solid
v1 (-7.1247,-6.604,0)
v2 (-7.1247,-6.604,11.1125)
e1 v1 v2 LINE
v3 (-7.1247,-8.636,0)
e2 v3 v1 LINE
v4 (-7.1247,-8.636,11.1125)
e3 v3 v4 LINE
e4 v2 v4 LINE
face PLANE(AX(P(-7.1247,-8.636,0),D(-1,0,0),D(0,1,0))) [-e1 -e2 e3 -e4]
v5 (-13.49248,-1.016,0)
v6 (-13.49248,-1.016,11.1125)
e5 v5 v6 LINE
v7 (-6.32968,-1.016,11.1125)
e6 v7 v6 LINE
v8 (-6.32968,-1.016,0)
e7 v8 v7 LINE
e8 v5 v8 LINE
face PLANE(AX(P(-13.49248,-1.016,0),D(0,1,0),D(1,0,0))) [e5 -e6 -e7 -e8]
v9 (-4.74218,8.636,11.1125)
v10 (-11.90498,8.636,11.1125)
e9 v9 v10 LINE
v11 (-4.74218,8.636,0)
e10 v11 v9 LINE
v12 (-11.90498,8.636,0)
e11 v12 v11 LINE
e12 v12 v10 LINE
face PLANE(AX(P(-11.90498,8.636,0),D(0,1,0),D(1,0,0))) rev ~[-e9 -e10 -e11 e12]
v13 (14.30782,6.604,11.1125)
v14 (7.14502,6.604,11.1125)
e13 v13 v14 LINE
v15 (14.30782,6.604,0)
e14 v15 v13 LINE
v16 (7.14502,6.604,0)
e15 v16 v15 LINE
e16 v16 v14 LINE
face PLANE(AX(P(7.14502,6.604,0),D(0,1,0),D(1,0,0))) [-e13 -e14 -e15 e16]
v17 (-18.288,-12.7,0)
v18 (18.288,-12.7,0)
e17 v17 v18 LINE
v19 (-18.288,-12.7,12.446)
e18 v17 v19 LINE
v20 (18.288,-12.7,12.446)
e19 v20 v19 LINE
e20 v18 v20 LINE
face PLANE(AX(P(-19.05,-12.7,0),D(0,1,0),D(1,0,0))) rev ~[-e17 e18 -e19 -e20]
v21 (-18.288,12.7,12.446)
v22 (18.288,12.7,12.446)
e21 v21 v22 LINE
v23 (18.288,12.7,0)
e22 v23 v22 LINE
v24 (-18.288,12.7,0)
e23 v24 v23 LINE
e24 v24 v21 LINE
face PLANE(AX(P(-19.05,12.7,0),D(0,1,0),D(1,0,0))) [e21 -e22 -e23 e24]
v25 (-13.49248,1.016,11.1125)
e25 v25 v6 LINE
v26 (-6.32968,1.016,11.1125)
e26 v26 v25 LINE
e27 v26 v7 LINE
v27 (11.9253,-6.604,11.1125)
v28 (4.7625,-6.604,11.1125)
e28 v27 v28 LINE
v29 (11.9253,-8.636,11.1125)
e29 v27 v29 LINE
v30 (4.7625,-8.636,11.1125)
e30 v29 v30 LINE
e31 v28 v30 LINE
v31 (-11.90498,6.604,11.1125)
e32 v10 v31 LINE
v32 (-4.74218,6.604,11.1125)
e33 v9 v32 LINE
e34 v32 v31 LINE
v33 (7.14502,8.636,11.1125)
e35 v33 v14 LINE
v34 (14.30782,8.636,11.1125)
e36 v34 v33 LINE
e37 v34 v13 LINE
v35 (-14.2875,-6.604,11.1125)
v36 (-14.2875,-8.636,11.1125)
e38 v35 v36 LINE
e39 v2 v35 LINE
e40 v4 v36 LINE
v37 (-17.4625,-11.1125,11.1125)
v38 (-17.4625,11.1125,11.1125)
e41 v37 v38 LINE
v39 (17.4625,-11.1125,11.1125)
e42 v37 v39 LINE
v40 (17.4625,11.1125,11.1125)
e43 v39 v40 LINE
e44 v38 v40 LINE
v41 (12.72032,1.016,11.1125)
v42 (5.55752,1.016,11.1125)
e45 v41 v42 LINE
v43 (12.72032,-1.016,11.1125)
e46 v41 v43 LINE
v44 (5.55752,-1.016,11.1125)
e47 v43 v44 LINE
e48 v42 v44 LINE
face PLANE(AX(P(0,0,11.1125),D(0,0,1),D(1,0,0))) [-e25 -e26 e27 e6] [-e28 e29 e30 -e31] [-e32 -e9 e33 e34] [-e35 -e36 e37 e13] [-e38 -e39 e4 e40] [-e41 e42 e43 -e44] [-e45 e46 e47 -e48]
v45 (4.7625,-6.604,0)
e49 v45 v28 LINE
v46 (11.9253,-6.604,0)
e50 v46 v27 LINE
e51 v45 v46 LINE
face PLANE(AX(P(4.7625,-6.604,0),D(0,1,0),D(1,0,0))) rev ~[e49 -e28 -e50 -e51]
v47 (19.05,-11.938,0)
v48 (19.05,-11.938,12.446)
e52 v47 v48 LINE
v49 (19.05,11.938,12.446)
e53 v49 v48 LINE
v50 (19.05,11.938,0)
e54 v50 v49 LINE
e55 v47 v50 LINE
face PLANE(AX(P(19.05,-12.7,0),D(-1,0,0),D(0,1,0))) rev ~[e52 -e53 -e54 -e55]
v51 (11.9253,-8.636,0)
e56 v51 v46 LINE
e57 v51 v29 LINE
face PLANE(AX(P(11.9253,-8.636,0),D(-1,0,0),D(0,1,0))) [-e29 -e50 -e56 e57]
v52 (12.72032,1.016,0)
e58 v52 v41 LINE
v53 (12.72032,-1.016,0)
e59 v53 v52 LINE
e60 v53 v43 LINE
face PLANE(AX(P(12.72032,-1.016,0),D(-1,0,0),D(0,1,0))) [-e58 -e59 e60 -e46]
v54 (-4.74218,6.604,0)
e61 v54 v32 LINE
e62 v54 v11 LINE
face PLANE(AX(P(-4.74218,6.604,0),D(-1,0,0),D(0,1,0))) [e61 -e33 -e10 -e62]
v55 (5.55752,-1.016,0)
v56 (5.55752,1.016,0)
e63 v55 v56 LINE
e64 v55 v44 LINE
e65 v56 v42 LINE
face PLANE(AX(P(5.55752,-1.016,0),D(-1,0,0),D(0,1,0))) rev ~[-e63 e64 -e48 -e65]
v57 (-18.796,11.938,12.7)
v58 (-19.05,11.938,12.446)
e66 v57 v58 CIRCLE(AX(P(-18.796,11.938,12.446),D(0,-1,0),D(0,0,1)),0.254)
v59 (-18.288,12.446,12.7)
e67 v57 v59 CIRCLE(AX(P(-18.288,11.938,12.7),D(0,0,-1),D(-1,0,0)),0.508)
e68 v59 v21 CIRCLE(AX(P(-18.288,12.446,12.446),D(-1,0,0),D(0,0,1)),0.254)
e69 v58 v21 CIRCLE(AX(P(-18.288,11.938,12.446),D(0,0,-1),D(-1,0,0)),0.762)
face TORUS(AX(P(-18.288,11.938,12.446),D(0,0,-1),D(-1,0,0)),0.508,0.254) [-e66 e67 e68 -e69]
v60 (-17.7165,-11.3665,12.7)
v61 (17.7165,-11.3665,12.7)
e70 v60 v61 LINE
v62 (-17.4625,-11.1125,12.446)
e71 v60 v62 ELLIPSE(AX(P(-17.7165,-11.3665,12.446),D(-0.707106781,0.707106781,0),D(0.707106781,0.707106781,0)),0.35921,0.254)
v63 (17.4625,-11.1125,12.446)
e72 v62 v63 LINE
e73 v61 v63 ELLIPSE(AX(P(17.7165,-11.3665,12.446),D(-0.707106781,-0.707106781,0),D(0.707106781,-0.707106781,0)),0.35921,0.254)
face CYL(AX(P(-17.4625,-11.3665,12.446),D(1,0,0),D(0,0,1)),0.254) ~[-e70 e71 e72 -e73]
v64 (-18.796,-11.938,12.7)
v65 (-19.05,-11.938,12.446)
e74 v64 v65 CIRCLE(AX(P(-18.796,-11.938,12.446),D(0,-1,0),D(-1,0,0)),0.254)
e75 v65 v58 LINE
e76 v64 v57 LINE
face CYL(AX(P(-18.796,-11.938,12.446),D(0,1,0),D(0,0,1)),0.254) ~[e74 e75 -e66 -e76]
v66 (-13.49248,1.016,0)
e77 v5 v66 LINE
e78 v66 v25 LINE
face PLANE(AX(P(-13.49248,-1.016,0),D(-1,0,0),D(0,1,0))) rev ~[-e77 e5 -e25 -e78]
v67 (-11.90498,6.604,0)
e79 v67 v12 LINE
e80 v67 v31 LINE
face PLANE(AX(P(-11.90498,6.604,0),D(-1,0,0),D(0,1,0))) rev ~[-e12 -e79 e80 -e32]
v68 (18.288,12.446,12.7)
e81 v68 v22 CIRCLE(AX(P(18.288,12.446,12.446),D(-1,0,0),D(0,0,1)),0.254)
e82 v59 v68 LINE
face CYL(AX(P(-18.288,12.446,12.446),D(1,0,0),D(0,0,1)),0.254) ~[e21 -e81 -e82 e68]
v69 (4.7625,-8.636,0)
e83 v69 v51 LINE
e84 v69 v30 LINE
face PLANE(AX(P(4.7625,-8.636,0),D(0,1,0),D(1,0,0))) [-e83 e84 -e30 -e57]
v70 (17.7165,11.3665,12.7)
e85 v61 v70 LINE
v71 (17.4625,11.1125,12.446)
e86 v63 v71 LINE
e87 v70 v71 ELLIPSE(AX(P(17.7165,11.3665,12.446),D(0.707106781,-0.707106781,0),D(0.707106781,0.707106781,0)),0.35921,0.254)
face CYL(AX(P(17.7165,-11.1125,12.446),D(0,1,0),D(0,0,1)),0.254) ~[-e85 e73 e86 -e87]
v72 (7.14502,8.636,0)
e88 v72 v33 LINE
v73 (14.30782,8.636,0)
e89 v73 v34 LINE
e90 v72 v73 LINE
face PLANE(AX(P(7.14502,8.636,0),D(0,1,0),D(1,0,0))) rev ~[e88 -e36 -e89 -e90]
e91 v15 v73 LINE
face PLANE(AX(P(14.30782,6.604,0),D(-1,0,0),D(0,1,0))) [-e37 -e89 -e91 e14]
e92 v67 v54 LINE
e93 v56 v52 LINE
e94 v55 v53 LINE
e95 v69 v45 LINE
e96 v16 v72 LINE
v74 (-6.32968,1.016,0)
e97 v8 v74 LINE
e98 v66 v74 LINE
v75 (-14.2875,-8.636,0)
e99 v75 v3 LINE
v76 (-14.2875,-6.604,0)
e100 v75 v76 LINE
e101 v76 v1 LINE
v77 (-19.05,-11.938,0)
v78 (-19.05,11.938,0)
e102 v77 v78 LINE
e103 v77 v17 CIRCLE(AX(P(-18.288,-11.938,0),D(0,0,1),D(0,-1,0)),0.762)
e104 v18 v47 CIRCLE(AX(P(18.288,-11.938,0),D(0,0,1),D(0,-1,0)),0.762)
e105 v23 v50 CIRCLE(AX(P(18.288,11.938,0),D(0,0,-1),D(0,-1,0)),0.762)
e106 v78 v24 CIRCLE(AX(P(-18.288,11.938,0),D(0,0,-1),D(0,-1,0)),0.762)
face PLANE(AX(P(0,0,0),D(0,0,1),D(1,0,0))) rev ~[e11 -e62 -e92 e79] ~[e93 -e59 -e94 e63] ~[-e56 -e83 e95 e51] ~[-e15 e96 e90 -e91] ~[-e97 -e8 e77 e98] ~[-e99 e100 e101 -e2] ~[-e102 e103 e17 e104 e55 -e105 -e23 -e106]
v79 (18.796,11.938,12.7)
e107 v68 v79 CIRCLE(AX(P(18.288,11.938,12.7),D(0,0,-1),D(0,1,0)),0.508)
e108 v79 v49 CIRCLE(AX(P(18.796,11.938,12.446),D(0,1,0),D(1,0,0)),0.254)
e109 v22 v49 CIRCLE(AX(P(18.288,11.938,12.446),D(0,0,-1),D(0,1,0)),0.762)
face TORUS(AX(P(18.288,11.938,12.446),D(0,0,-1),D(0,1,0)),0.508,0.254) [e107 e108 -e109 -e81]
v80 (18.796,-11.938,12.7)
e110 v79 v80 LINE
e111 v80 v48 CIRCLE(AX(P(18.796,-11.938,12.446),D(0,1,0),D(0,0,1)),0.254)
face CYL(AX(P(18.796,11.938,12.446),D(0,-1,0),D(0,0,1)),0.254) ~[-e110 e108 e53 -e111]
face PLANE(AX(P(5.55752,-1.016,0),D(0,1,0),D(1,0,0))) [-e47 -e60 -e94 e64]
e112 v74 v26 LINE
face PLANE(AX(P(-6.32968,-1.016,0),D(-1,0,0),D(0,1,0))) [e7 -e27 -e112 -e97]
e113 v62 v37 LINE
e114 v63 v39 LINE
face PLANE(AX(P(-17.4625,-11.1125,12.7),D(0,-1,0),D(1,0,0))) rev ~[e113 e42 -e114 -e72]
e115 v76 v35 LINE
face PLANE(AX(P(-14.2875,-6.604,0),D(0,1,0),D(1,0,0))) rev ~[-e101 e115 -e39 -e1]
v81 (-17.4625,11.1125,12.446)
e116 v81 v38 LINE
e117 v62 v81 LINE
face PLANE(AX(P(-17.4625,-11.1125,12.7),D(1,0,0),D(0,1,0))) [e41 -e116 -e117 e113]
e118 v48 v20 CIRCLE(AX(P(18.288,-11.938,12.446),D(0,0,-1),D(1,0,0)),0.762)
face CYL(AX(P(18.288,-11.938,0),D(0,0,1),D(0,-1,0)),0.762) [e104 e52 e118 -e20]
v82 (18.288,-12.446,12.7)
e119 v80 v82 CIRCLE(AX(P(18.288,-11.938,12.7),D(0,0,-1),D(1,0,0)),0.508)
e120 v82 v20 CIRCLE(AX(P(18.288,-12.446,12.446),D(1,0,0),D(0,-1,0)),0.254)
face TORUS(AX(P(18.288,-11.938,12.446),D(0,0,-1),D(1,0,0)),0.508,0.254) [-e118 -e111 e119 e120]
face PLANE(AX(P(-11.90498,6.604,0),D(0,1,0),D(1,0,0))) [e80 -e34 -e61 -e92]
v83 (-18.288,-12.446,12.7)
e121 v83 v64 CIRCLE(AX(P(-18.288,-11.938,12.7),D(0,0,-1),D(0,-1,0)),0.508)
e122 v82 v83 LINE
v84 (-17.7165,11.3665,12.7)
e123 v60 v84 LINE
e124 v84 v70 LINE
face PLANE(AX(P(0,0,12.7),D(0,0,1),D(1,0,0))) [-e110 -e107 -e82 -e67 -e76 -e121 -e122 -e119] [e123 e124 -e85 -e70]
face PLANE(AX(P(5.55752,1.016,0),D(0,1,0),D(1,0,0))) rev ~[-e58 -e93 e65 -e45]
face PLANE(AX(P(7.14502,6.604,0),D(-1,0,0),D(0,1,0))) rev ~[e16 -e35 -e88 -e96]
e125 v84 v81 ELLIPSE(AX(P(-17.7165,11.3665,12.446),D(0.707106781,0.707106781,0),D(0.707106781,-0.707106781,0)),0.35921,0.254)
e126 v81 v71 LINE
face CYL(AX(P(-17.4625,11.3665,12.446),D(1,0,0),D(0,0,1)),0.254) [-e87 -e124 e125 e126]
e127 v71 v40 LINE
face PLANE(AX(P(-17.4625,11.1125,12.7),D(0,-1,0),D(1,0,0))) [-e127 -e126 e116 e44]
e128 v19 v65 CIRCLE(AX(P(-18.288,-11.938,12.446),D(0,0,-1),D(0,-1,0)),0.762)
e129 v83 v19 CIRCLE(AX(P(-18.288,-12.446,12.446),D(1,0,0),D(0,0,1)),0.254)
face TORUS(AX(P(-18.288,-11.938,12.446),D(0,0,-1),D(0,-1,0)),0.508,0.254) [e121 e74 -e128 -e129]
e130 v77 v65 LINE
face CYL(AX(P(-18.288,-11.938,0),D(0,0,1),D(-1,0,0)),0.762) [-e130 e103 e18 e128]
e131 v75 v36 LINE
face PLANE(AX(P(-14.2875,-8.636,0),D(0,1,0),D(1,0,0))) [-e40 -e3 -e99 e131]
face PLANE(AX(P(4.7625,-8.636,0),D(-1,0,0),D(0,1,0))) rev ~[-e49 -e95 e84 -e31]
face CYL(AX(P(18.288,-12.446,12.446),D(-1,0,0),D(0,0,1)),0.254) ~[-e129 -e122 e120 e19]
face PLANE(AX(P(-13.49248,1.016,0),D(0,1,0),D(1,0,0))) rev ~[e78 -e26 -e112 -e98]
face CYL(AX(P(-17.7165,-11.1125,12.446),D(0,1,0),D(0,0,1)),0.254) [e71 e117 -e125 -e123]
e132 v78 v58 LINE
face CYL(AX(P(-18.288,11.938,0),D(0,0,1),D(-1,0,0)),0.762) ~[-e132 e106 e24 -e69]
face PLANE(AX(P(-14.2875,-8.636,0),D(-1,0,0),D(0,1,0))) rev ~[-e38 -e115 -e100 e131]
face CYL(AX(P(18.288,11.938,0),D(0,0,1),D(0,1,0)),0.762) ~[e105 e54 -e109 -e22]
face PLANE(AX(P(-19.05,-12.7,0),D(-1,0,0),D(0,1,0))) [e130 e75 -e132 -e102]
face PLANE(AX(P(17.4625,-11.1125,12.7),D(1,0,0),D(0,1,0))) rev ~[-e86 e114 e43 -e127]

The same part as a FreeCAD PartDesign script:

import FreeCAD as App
import Part
import Sketcher
Q = App.Units.Quantity


def edges_at(feature, points):
    """Names of the edges that pass closest to the given points."""
    edges = feature.Shape.Edges
    near = lambda p: min(range(len(edges)), key=lambda i: edges[i].distToShape(Part.Vertex(*p))[0])
    return sorted({f"Edge{near(p) + 1}" for p in points})

doc = App.newDocument("Part")
body = doc.addObject("PartDesign::Body", "Body")

# Sketch on XY plane
sketch1 = body.newObject("Sketcher::SketchObject", "Sketch")
sketch1.AttachmentSupport = (doc.getObject("XY_Plane"), [""])
sketch1.MapMode = "FlatFace"
sketch1.addGeometry([
    Part.LineSegment(App.Vector(-19.05, 12.7, 0), App.Vector(-19.05, -12.7, 0)),
    Part.LineSegment(App.Vector(-19.05, -12.7, 0), App.Vector(19.05, -12.7, 0)),
    Part.LineSegment(App.Vector(19.05, -12.7, 0), App.Vector(19.05, 12.7, 0)),
    Part.LineSegment(App.Vector(19.05, 12.7, 0), App.Vector(-19.05, 12.7, 0)),
], False)
sketch1.addConstraint([
    Sketcher.Constraint("Coincident", 0, 2, 1, 1),
    Sketcher.Constraint("Coincident", 1, 2, 2, 1),
    Sketcher.Constraint("Coincident", 2, 2, 3, 1),
    Sketcher.Constraint("Coincident", 3, 2, 0, 1),
    Sketcher.Constraint("Vertical", 0),
    Sketcher.Constraint("Horizontal", 1),
    Sketcher.Constraint("Vertical", 2),
    Sketcher.Constraint("Horizontal", 3),
    Sketcher.Constraint("Symmetric", 0, 2, 2, 2, -1, 1),
    Sketcher.Constraint("DistanceY", 0, 2, 0, 1, Q("1 in")),
    Sketcher.Constraint("DistanceX", 1, 1, 1, 2, Q("1.5 in")),
])
pad1 = body.newObject("PartDesign::Pad", "Pad")
pad1.Profile = sketch1
pad1.Length = Q("0.5 in")

# Sketch on XY plane
sketch2 = body.newObject("Sketcher::SketchObject", "Sketch001")
sketch2.AttachmentSupport = (doc.getObject("XY_Plane"), [""])
sketch2.MapMode = "FlatFace"
sketch2.AttachmentOffset = App.Placement(App.Vector(0, 0, 0.5 * 25.4), App.Rotation())
sketch2.addGeometry([
    Part.LineSegment(App.Vector(-17.4625, 11.1125, 0), App.Vector(-17.4625, -11.1125, 0)),
    Part.LineSegment(App.Vector(-17.4625, -11.1125, 0), App.Vector(17.4625, -11.1125, 0)),
    Part.LineSegment(App.Vector(17.4625, -11.1125, 0), App.Vector(17.4625, 11.1125, 0)),
    Part.LineSegment(App.Vector(17.4625, 11.1125, 0), App.Vector(-17.4625, 11.1125, 0)),
], False)
sketch2.addConstraint([
    Sketcher.Constraint("Coincident", 0, 2, 1, 1),
    Sketcher.Constraint("Coincident", 1, 2, 2, 1),
    Sketcher.Constraint("Coincident", 2, 2, 3, 1),
    Sketcher.Constraint("Coincident", 3, 2, 0, 1),
    Sketcher.Constraint("Vertical", 0),
    Sketcher.Constraint("Horizontal", 1),
    Sketcher.Constraint("Vertical", 2),
    Sketcher.Constraint("Horizontal", 3),
    Sketcher.Constraint("Symmetric", 0, 2, 2, 2, -1, 1),
    Sketcher.Constraint("DistanceX", 1, 1, 1, 2, Q("1.375 in")),
    Sketcher.Constraint("DistanceY", 0, 2, 0, 1, Q("0.875 in")),
])
pocket1 = body.newObject("PartDesign::Pocket", "Pocket")
pocket1.Profile = sketch2
pocket1.Length = Q("0.0625 in")
doc.recompute()

fillet = body.newObject("PartDesign::Fillet", "Fillet")
fillet.Base = (pocket1, edges_at(pocket1, [
    (-19.05, -12.7, 6.35),
    (-19.05, 12.7, 6.35),
    (19.05, 12.7, 6.35),
    (19.05, -12.7, 6.35),
]))
fillet.Radius = Q("0.03 in")
doc.recompute()

fillet2 = body.newObject("PartDesign::Fillet", "Fillet001")
fillet2.Base = (fillet, edges_at(fillet, [
    (0, 12.7, 12.7),
    (18.827, 12.477, 12.7),
    (-18.827, 12.477, 12.7),
    (19.05, 0, 12.7),
    (-19.05, 0, 12.7),
    (18.827, -12.477, 12.7),
    (-18.827, -12.477, 12.7),
    (0, -12.7, 12.7),
    (0, 11.113, 12.7),
    (-17.462, 0, 12.7),
    (0, -11.113, 12.7),
    (17.462, 0, 12.7),
]))
fillet2.Radius = Q("0.01 in")

# Sketch on XY plane
sketch3 = body.newObject("Sketcher::SketchObject", "Sketch002")
sketch3.AttachmentSupport = (doc.getObject("XY_Plane"), [""])
sketch3.MapMode = "FlatFace"
sketch3.addGeometry([
    Part.LineSegment(App.Vector(-14.2875, -6.604, 0), App.Vector(-14.2875, -8.636, 0)),  # 0
    Part.LineSegment(App.Vector(-14.2875, -8.636, 0), App.Vector(-7.1247, -8.636, 0)),  # 1
    Part.LineSegment(App.Vector(-7.1247, -8.636, 0), App.Vector(-7.1247, -6.604, 0)),  # 2
    Part.LineSegment(App.Vector(-7.1247, -6.604, 0), App.Vector(-14.2875, -6.604, 0)),  # 3
    Part.LineSegment(App.Vector(-13.49248, 1.016, 0), App.Vector(-13.49248, -1.016, 0)),  # 4
    Part.LineSegment(App.Vector(-13.49248, -1.016, 0), App.Vector(-6.32968, -1.016, 0)),  # 5
    Part.LineSegment(App.Vector(-6.32968, -1.016, 0), App.Vector(-6.32968, 1.016, 0)),  # 6
    Part.LineSegment(App.Vector(-6.32968, 1.016, 0), App.Vector(-13.49248, 1.016, 0)),  # 7
    Part.LineSegment(App.Vector(-11.90498, 8.636, 0), App.Vector(-11.90498, 6.604, 0)),  # 8
    Part.LineSegment(App.Vector(-11.90498, 6.604, 0), App.Vector(-4.74218, 6.604, 0)),  # 9
    Part.LineSegment(App.Vector(-4.74218, 6.604, 0), App.Vector(-4.74218, 8.636, 0)),  # 10
    Part.LineSegment(App.Vector(-4.74218, 8.636, 0), App.Vector(-11.90498, 8.636, 0)),  # 11
    Part.LineSegment(App.Vector(5.55752, 1.016, 0), App.Vector(5.55752, -1.016, 0)),  # 12
    Part.LineSegment(App.Vector(5.55752, -1.016, 0), App.Vector(12.72032, -1.016, 0)),  # 13
    Part.LineSegment(App.Vector(12.72032, -1.016, 0), App.Vector(12.72032, 1.016, 0)),  # 14
    Part.LineSegment(App.Vector(12.72032, 1.016, 0), App.Vector(5.55752, 1.016, 0)),  # 15
    Part.LineSegment(App.Vector(4.7625, -6.604, 0), App.Vector(4.7625, -8.636, 0)),  # 16
    Part.LineSegment(App.Vector(4.7625, -8.636, 0), App.Vector(11.9253, -8.636, 0)),  # 17
    Part.LineSegment(App.Vector(11.9253, -8.636, 0), App.Vector(11.9253, -6.604, 0)),  # 18
    Part.LineSegment(App.Vector(11.9253, -6.604, 0), App.Vector(4.7625, -6.604, 0)),  # 19
    Part.LineSegment(App.Vector(7.14502, 8.636, 0), App.Vector(7.14502, 6.604, 0)),  # 20
    Part.LineSegment(App.Vector(7.14502, 6.604, 0), App.Vector(14.30782, 6.604, 0)),  # 21
    Part.LineSegment(App.Vector(14.30782, 6.604, 0), App.Vector(14.30782, 8.636, 0)),  # 22
    Part.LineSegment(App.Vector(14.30782, 8.636, 0), App.Vector(7.14502, 8.636, 0)),  # 23
], False)
sketch3.addConstraint([
    Sketcher.Constraint("Coincident", 0, 2, 1, 1),
    Sketcher.Constraint("Coincident", 1, 2, 2, 1),
    Sketcher.Constraint("Coincident", 2, 2, 3, 1),
    Sketcher.Constraint("Coincident", 3, 2, 0, 1),
    Sketcher.Constraint("Coincident", 4, 2, 5, 1),
    Sketcher.Constraint("Coincident", 5, 2, 6, 1),
    Sketcher.Constraint("Coincident", 6, 2, 7, 1),
    Sketcher.Constraint("Coincident", 7, 2, 4, 1),
    Sketcher.Constraint("Coincident", 8, 2, 9, 1),
    Sketcher.Constraint("Coincident", 9, 2, 10, 1),
    Sketcher.Constraint("Coincident", 10, 2, 11, 1),
    Sketcher.Constraint("Coincident", 11, 2, 8, 1),
    Sketcher.Constraint("Coincident", 12, 2, 13, 1),
    Sketcher.Constraint("Coincident", 13, 2, 14, 1),
    Sketcher.Constraint("Coincident", 14, 2, 15, 1),
    Sketcher.Constraint("Coincident", 15, 2, 12, 1),
    Sketcher.Constraint("Coincident", 16, 2, 17, 1),
    Sketcher.Constraint("Coincident", 17, 2, 18, 1),
    Sketcher.Constraint("Coincident", 18, 2, 19, 1),
    Sketcher.Constraint("Coincident", 19, 2, 16, 1),
    Sketcher.Constraint("Coincident", 20, 2, 21, 1),
    Sketcher.Constraint("Coincident", 21, 2, 22, 1),
    Sketcher.Constraint("Coincident", 22, 2, 23, 1),
    Sketcher.Constraint("Coincident", 23, 2, 20, 1),
    Sketcher.Constraint("Vertical", 0),
    Sketcher.Constraint("Horizontal", 1),
    Sketcher.Constraint("Vertical", 2),
    Sketcher.Constraint("Horizontal", 3),
    Sketcher.Constraint("Vertical", 4),
    Sketcher.Constraint("Horizontal", 5),
    Sketcher.Constraint("Vertical", 6),
    Sketcher.Constraint("Horizontal", 7),
    Sketcher.Constraint("Vertical", 8),
    Sketcher.Constraint("Horizontal", 9),
    Sketcher.Constraint("Vertical", 10),
    Sketcher.Constraint("Horizontal", 11),
    Sketcher.Constraint("Vertical", 12),
    Sketcher.Constraint("Horizontal", 13),
    Sketcher.Constraint("Vertical", 14),
    Sketcher.Constraint("Horizontal", 15),
    Sketcher.Constraint("Vertical", 16),
    Sketcher.Constraint("Horizontal", 17),
    Sketcher.Constraint("Vertical", 18),
    Sketcher.Constraint("Horizontal", 19),
    Sketcher.Constraint("Vertical", 20),
    Sketcher.Constraint("Horizontal", 21),
    Sketcher.Constraint("Vertical", 22),
    Sketcher.Constraint("Horizontal", 23),
    Sketcher.Constraint("Horizontal", 5, 2, 12, 2),
    Sketcher.Constraint("Horizontal", 7, 2, 14, 2),
    Sketcher.Constraint("Horizontal", 1, 2, 16, 2),
    Sketcher.Constraint("Horizontal", 3, 2, 18, 2),
    Sketcher.Constraint("Horizontal", 9, 2, 20, 2),
    Sketcher.Constraint("Horizontal", 11, 2, 22, 2),
    Sketcher.Constraint("Equal", 3, 5),
    Sketcher.Constraint("Equal", 7, 9),
    Sketcher.Constraint("Equal", 11, 13),
    Sketcher.Constraint("Equal", 15, 17),
    Sketcher.Constraint("Equal", 19, 21),
    Sketcher.Constraint("Equal", 2, 4),
    Sketcher.Constraint("Equal", 6, 8),
    Sketcher.Constraint("DistanceY", 0, 2, 0, 1, Q("0.08 in")),
    Sketcher.Constraint("DistanceY", 0, 2, 4, 2, Q("0.3 in")),
    Sketcher.Constraint("DistanceY", 4, 2, 8, 2, Q("0.3 in")),
    Sketcher.Constraint("DistanceX", 1, 1, 1, 2, Q("0.282 in")),
    Sketcher.Constraint("DistanceY", 0, 2, -1, 1, Q("0.34 in")),
    Sketcher.Constraint("DistanceX", 5, 2, 13, 2, Q("0.75 in")),
    Sketcher.Constraint("DistanceX", 0, 2, -1, 1, Q("0.5625 in")),
    Sketcher.Constraint("DistanceX", -1, 1, 16, 2, Q("0.1875 in")),
    Sketcher.Constraint("DistanceX", 7, 2, 8, 2, Q("0.0625 in")),
    Sketcher.Constraint("DistanceX", 15, 2, 20, 2, Q("0.0625 in")),
    Sketcher.Constraint("DistanceX", 4, 2, -1, 1, Q("0.5312 in")),
])
pocket2 = body.newObject("PartDesign::Pocket", "Pocket001")
pocket2.Profile = sketch3
pocket2.Length = Q("1 in")
pocket2.Reversed = True

doc.recompute()
